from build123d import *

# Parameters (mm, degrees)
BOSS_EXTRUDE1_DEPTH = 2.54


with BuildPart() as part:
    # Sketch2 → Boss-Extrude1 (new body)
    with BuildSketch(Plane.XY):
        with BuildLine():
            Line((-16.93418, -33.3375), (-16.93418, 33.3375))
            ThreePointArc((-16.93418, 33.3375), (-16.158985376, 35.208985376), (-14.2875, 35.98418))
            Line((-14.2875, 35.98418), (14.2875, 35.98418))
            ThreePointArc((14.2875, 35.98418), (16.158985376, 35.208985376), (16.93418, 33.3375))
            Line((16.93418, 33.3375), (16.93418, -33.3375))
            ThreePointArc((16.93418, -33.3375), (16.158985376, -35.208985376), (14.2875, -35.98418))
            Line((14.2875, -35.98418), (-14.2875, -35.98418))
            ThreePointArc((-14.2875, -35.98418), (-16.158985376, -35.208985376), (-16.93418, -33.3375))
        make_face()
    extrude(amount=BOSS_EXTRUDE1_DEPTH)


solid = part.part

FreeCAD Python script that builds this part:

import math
import FreeCAD as App
import Part
import Sketcher
from FreeCAD import Vector
Q = App.Units.Quantity

doc = App.newDocument("Part")
body = doc.addObject("PartDesign::Body", "Body")

sketch1 = doc.addObject("Sketcher::SketchObject", "Sketch")
body.addObject(sketch1)
sketch1.AttachmentSupport = (doc.XY_Plane, [""])
sketch1.MapMode = "FlatFace"
sketch1.addGeometry([
    Part.LineSegment(Vector(-16.9, 33.3, 0), Vector(-16.9, -33.3, 0)),
    Part.ArcOfCircle(Part.Circle(Vector(-14.3, -33.3, 0), Vector(0, 0, 1), 2.6), math.radians(180), math.radians(270)),
    Part.LineSegment(Vector(-14.3, -36, 0), Vector(14.3, -36, 0)),
    Part.ArcOfCircle(Part.Circle(Vector(14.3, -33.3, 0), Vector(0, 0, 1), 2.6), math.radians(-90), math.radians(0)),
    Part.LineSegment(Vector(16.9, -33.3, 0), Vector(16.9, 33.3, 0)),
    Part.ArcOfCircle(Part.Circle(Vector(14.3, 33.3, 0), Vector(0, 0, 1), 2.6), math.radians(0), math.radians(90)),
    Part.LineSegment(Vector(14.3, 36, 0), Vector(-14.3, 36, 0)),
    Part.ArcOfCircle(Part.Circle(Vector(-14.3, 33.3, 0), Vector(0, 0, 1), 2.6), math.radians(90), math.radians(180)),
], False)
sketch1.addConstraint([
    Sketcher.Constraint("Tangent", 0, 2, 1, 1),
    Sketcher.Constraint("Tangent", 1, 2, 2, 1),
    Sketcher.Constraint("Tangent", 2, 2, 3, 1),
    Sketcher.Constraint("Tangent", 3, 2, 4, 1),
    Sketcher.Constraint("Tangent", 4, 2, 5, 1),
    Sketcher.Constraint("Tangent", 5, 2, 6, 1),
    Sketcher.Constraint("Tangent", 6, 2, 7, 1),
    Sketcher.Constraint("Tangent", 7, 2, 0, 1),
    Sketcher.Constraint("Vertical", 0),
    Sketcher.Constraint("Horizontal", 2),
    Sketcher.Constraint("Vertical", 4),
    Sketcher.Constraint("Horizontal", 6),
    Sketcher.Constraint("Equal", 1, 3),
    Sketcher.Constraint("Equal", 3, 5),
    Sketcher.Constraint("Equal", 5, 7),
    Sketcher.Constraint("Symmetric", 1, 3, 5, 3, -1, 1),
    Sketcher.Constraint("Radius", 1, Q("0.1042 in")),
    Sketcher.Constraint("DistanceX", 2, 1, 2, 2, Q("1.125 in")),
    Sketcher.Constraint("DistanceY", 0, 2, 0, 1, Q("2.625 in")),
])
pad1 = doc.addObject("PartDesign::Pad", "Pad")
body.addObject(pad1)
pad1.Profile = sketch1
pad1.Length = Q("0.1 in")

doc.recompute()
